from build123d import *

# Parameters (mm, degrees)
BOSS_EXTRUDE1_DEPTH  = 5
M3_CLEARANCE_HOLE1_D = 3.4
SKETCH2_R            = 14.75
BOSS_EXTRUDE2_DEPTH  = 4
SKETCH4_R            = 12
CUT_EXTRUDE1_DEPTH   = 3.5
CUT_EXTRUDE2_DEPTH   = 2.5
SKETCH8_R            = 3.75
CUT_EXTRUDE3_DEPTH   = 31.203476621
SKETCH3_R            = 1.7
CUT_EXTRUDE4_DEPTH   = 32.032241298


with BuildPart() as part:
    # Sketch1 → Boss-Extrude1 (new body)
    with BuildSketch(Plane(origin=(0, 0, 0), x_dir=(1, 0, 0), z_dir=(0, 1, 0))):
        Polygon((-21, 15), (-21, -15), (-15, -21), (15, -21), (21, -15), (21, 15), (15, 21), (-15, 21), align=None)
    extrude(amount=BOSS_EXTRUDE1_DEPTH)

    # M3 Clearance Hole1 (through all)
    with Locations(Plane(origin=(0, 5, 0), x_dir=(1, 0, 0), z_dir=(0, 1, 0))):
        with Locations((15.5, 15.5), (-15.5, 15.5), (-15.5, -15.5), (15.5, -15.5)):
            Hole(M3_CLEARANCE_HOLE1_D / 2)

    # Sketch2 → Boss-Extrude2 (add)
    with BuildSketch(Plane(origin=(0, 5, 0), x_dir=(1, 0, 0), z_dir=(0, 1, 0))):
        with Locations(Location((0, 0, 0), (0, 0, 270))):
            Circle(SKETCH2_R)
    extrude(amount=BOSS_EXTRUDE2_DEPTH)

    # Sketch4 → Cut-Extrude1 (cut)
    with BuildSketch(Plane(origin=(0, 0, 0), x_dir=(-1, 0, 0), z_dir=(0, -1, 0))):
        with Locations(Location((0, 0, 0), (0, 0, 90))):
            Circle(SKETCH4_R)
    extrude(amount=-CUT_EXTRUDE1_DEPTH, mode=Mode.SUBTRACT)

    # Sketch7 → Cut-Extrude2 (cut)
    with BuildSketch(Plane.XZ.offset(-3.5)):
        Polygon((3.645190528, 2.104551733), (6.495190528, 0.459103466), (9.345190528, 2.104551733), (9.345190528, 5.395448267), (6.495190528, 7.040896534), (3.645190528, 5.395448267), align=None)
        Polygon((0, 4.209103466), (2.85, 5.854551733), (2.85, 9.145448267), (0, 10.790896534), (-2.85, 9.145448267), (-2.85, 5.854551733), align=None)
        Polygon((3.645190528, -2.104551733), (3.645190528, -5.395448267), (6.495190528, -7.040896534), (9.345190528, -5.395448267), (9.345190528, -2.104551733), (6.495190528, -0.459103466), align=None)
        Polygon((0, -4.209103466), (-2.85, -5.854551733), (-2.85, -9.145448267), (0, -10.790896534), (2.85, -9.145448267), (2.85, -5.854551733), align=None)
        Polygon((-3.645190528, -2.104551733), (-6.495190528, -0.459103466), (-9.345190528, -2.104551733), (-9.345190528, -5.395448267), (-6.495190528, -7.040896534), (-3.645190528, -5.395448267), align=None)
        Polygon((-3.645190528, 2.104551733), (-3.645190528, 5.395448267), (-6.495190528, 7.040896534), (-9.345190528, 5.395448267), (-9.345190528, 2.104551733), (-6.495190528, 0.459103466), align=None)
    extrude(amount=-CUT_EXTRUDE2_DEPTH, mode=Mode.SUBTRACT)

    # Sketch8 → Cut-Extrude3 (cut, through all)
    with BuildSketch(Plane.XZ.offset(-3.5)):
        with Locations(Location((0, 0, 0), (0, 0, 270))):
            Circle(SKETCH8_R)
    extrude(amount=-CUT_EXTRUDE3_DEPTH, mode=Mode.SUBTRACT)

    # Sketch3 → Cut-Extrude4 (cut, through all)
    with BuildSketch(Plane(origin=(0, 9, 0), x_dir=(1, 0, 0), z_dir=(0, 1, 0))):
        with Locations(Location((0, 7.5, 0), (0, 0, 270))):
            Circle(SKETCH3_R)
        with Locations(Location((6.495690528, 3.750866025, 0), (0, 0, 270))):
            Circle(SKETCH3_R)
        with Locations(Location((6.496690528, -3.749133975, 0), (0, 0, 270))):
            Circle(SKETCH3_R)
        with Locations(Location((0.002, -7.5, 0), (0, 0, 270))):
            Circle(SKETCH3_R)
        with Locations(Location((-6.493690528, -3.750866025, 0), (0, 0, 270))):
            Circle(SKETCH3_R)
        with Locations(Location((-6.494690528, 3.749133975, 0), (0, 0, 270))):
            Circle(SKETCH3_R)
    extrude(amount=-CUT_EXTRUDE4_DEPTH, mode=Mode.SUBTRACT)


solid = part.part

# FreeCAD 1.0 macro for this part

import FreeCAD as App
import Part
import Sketcher
from FreeCAD import Vector
Q = App.Units.Quantity


def add_polygon(sketch, points):
    """Adds a closed chain of lines whose ends are joined by coincident constraints."""
    first, n = sketch.GeometryCount, len(points)
    for a, b in zip(points, points[1:] + points[:1]):
        sketch.addGeometry(Part.LineSegment(App.Vector(*a, 0), App.Vector(*b, 0)), False)
    for i in range(n):
        sketch.addConstraint(Sketcher.Constraint("Coincident", first + i, 2, first + (i + 1) % n, 1))

doc = App.newDocument("Part")
body = doc.addObject("PartDesign::Body", "Body")

sketch1 = body.newObject("Sketcher::SketchObject", "Sketch")
sketch1.AttachmentSupport = (doc.getObject("XZ_Plane"), [""])
sketch1.MapMode = "FlatFace"
add_polygon(sketch1, [(-21, -15), (-21, 15), (-15, 21), (15, 21), (21, 15), (21, -15), (15, -21), (-15, -21)])
sketch1.addConstraint(Sketcher.Constraint("Vertical", 0))
sketch1.addConstraint(Sketcher.Constraint("Horizontal", 2))
sketch1.addConstraint(Sketcher.Constraint("Vertical", 4))
sketch1.addConstraint(Sketcher.Constraint("Horizontal", 6))
sketch1.addConstraint(Sketcher.Constraint("Symmetric", 0, 2, 4, 2, -1, 1))
sketch1.addConstraint(Sketcher.Constraint("Symmetric", 1, 2, 5, 2, -1, 1))
sketch1.addConstraint(Sketcher.Constraint("Perpendicular", 1, 3))
sketch1.addConstraint(Sketcher.Constraint("Perpendicular", 5, 7))
sketch1.addConstraint(Sketcher.Constraint("Horizontal", 0, 2, 3, 2))
sketch1.addConstraint(Sketcher.Constraint("Horizontal", 4, 2, 7, 2))
sketch1.addConstraint(Sketcher.Constraint("Vertical", 2, 2, 5, 2))
sketch1.addConstraint(Sketcher.Constraint("Equal", 6, 0))
sketch1.addConstraint(Sketcher.Constraint("DistanceX", 2, 1, 2, 2, 30.0))
sketch1.addConstraint(Sketcher.Constraint("DistanceX", 0, 2, -1, 1, 21.0))
pad1 = body.newObject("PartDesign::Pad", "Pad")
pad1.Profile = sketch1
pad1.Length = 5
pad1.Reversed = True

sketch2 = body.newObject("Sketcher::SketchObject", "Sketch001")
sketch2.AttachmentSupport = (doc.getObject("XZ_Plane"), [""])
sketch2.MapMode = "FlatFace"
sketch2.AttachmentOffset = App.Placement(Vector(0, 0, -5), App.Rotation())
sketch2.addGeometry(Part.Circle(Vector(15.5, -15.5, 0), Vector(0, 0, 1), 1.7), False)
sketch2.addGeometry(Part.Circle(Vector(-15.5, -15.5, 0), Vector(0, 0, 1), 1.7), False)
sketch2.addGeometry(Part.Circle(Vector(-15.5, 15.5, 0), Vector(0, 0, 1), 1.7), False)
sketch2.addGeometry(Part.Circle(Vector(15.5, 15.5, 0), Vector(0, 0, 1), 1.7), False)
sketch2.addConstraint(Sketcher.Constraint("Equal", 0, 1))
sketch2.addConstraint(Sketcher.Constraint("Equal", 1, 2))
sketch2.addConstraint(Sketcher.Constraint("Equal", 2, 3))
sketch2.addConstraint(Sketcher.Constraint("Symmetric", 0, 3, 2, 3, -1, 1))
sketch2.addConstraint(Sketcher.Constraint("Symmetric", 1, 3, 3, 3, -1, 1))
sketch2.addConstraint(Sketcher.Constraint("Symmetric", 0, 3, 1, 3, -2))
sketch2.addConstraint(Sketcher.Constraint("Diameter", 0, 3.4))
sketch2.addConstraint(Sketcher.Constraint("DistanceX", 1, 3, 0, 3, 31.0))
sketch2.addConstraint(Sketcher.Constraint("DistanceY", 1, 3, 2, 3, 31.0))
doc.recompute()
hole = body.newObject("PartDesign::Hole", "Hole")
hole.Profile = sketch2
hole.ThreadType = "None"
hole.Diameter = 3.4
hole.DepthType = "ThroughAll"
hole.Reversed = True

sketch3 = body.newObject("Sketcher::SketchObject", "Sketch002")
sketch3.AttachmentSupport = (doc.getObject("XZ_Plane"), [""])
sketch3.MapMode = "FlatFace"
sketch3.AttachmentOffset = App.Placement(Vector(0, 0, -5), App.Rotation())
sketch3.addGeometry(Part.Circle(Vector(0, 0, 0), Vector(0, 0, 1), 15), False)
sketch3.addConstraint(Sketcher.Constraint("Coincident", 0, 3, -1, 1))
sketch3.addConstraint(Sketcher.Constraint("Diameter", 0, 29.5))
pad2 = body.newObject("PartDesign::Pad", "Pad001")
pad2.Profile = sketch3
pad2.Length = 4
pad2.Reversed = True

sketch4 = body.newObject("Sketcher::SketchObject", "Sketch003")
sketch4.AttachmentSupport = (doc.getObject("XZ_Plane"), [""])
sketch4.MapMode = "FlatFace"
sketch4.addGeometry(Part.Circle(Vector(0, 0, 0), Vector(0, 0, 1), 12), False)
sketch4.addConstraint(Sketcher.Constraint("Coincident", 0, 3, -1, 1))
sketch4.addConstraint(Sketcher.Constraint("Diameter", 0, 24.0))
pocket1 = body.newObject("PartDesign::Pocket", "Pocket")
pocket1.Profile = sketch4
pocket1.Length = 3.5

sketch5 = body.newObject("Sketcher::SketchObject", "Sketch004")
sketch5.AttachmentSupport = (doc.getObject("XZ_Plane"), [""])
sketch5.MapMode = "FlatFace"
sketch5.AttachmentOffset = App.Placement(Vector(0, 0, -3.5), App.Rotation())
add_polygon(sketch5, [(3.6, 2.1), (6.5, 0.5), (9.3, 2.1), (9.3, 5.4), (6.5, 7), (3.6, 5.4)])
add_polygon(sketch5, [(0, 4.2), (2.9, 5.9), (2.9, 9.1), (0, 10.8), (-2.9, 9.1), (-2.9, 5.9)])
add_polygon(sketch5, [(3.6, -2.1), (3.6, -5.4), (6.5, -7), (9.3, -5.4), (9.3, -2.1), (6.5, -0.5)])
add_polygon(sketch5, [(0, -4.2), (-2.9, -5.9), (-2.9, -9.1), (0, -10.8), (2.9, -9.1), (2.9, -5.9)])
add_polygon(sketch5, [(-3.6, -2.1), (-6.5, -0.5), (-9.3, -2.1), (-9.3, -5.4), (-6.5, -7), (-3.6, -5.4)])
add_polygon(sketch5, [(-3.6, 2.1), (-3.6, 5.4), (-6.5, 7), (-9.3, 5.4), (-9.3, 2.1), (-6.5, 0.5)])
sketch5.addConstraint(Sketcher.Constraint("Vertical", 2))
sketch5.addConstraint(Sketcher.Constraint("Vertical", 5))
sketch5.addConstraint(Sketcher.Constraint("Vertical", 7))
sketch5.addConstraint(Sketcher.Constraint("Vertical", 10))
sketch5.addConstraint(Sketcher.Constraint("Vertical", 12))
sketch5.addConstraint(Sketcher.Constraint("Vertical", 15))
sketch5.addConstraint(Sketcher.Constraint("Vertical", 19))
sketch5.addConstraint(Sketcher.Constraint("Vertical", 22))
sketch5.addConstraint(Sketcher.Constraint("Vertical", 26))
sketch5.addConstraint(Sketcher.Constraint("Vertical", 29))
sketch5.addConstraint(Sketcher.Constraint("Vertical", 30))
sketch5.addConstraint(Sketcher.Constraint("Vertical", 33))
sketch5.addConstraint(Sketcher.Constraint("Symmetric", 6, 2, 18, 2, -1, 1))
sketch5.addConstraint(Sketcher.Constraint("Symmetric", 8, 2, 20, 2, -1, 1))
sketch5.addConstraint(Sketcher.Constraint("Symmetric", 9, 2, 21, 2, -1, 1))
sketch5.addConstraint(Sketcher.Constraint("Symmetric", 11, 2, 23, 2, -1, 1))
sketch5.addConstraint(Sketcher.Constraint("Symmetric", 0, 2, 24, 2, -1, 1))
sketch5.addConstraint(Sketcher.Constraint("Symmetric", 1, 2, 25, 2, -1, 1))
sketch5.addConstraint(Sketcher.Constraint("Symmetric", 3, 2, 27, 2, -1, 1))
sketch5.addConstraint(Sketcher.Constraint("Symmetric", 4, 2, 28, 2, -1, 1))
sketch5.addConstraint(Sketcher.Constraint("Symmetric", 12, 2, 30, 2, -1, 1))
sketch5.addConstraint(Sketcher.Constraint("Symmetric", 13, 2, 31, 2, -1, 1))
sketch5.addConstraint(Sketcher.Constraint("Symmetric", 14, 2, 32, 2, -1, 1))
sketch5.addConstraint(Sketcher.Constraint("Symmetric", 16, 2, 34, 2, -1, 1))
sketch5.addConstraint(Sketcher.Constraint("Symmetric", 7, 2, 9, 2, -2))
sketch5.addConstraint(Sketcher.Constraint("Symmetric", 16, 2, 24, 2, -2))
sketch5.addConstraint(Sketcher.Constraint("Symmetric", 15, 2, 25, 2, -2))
sketch5.addConstraint(Sketcher.Constraint("Symmetric", 13, 2, 27, 2, -2))
sketch5.addConstraint(Sketcher.Constraint("Symmetric", 12, 2, 28, 2, -2))
sketch5.addConstraint(Sketcher.Constraint("PointOnObject", 8, 2, -2))
sketch5.addConstraint(Sketcher.Constraint("PointOnObject", 11, 2, -2))
sketch5.addConstraint(Sketcher.Constraint("Parallel", 0, 3))
sketch5.addConstraint(Sketcher.Constraint("Parallel", 1, 4))
sketch5.addConstraint(Sketcher.Constraint("Parallel", 4, 6))
sketch5.addConstraint(Sketcher.Constraint("Parallel", 3, 8))
sketch5.addConstraint(Sketcher.Constraint("Parallel", 6, 9))
sketch5.addConstraint(Sketcher.Constraint("Parallel", 8, 11))
sketch5.addConstraint(Sketcher.Constraint("Parallel", 9, 14))
sketch5.addConstraint(Sketcher.Constraint("Parallel", 14, 17))
sketch5.addConstraint(Sketcher.Constraint("Parallel", 16, 20))
sketch5.addConstraint(Sketcher.Constraint("Parallel", 20, 23))
sketch5.addConstraint(Sketcher.Constraint("Parallel", 23, 24))
sketch5.addConstraint(Sketcher.Constraint("Parallel", 24, 27))
sketch5.addConstraint(Sketcher.Constraint("Parallel", 31, 34))
sketch5.addConstraint(Sketcher.Constraint("Parallel", 32, 35))
sketch5.addConstraint(Sketcher.Constraint("Horizontal", 2, 2, 4, 2))
sketch5.addConstraint(Sketcher.Constraint("Horizontal", 1, 2, 5, 2))
sketch5.addConstraint(Sketcher.Constraint("Equal", 5, 7))
sketch5.addConstraint(Sketcher.Constraint("Equal", 4, 6))
sketch5.addConstraint(Sketcher.Constraint("Angle", 0, Q("-30 deg")))
sketch5.addConstraint(Sketcher.Constraint("DistanceX", 4, 2, 2, 2, 5.7))
sketch5.addConstraint(Sketcher.Constraint("DistanceY", 12, 2, 5, 2, 7.5))
sketch5.addConstraint(Sketcher.Constraint("DistanceY", 5, 2, 6, 2, 3.75))
sketch5.addConstraint(Sketcher.Constraint("DistanceY", 2, 1, 2, 2, 3.290897))
sketch5.addConstraint(Sketcher.Constraint("DistanceX", -1, 1, 0, 2, 6.495191))
pocket2 = body.newObject("PartDesign::Pocket", "Pocket001")
pocket2.Profile = sketch5
pocket2.Length = 2.5

sketch6 = body.newObject("Sketcher::SketchObject", "Sketch005")
sketch6.AttachmentSupport = (doc.getObject("XZ_Plane"), [""])
sketch6.MapMode = "FlatFace"
sketch6.AttachmentOffset = App.Placement(Vector(0, 0, -3.5), App.Rotation())
sketch6.addGeometry(Part.Circle(Vector(0, 0, 0), Vector(0, 0, 1), 3.8), False)
sketch6.addConstraint(Sketcher.Constraint("Coincident", 0, 3, -1, 1))
sketch6.addConstraint(Sketcher.Constraint("Diameter", 0, 7.5))
pocket3 = body.newObject("PartDesign::Pocket", "Pocket002")
pocket3.Profile = sketch6
pocket3.Type = "ThroughAll"

sketch7 = body.newObject("Sketcher::SketchObject", "Sketch006")
sketch7.AttachmentSupport = (doc.getObject("XZ_Plane"), [""])
sketch7.MapMode = "FlatFace"
sketch7.AttachmentOffset = App.Placement(Vector(0, 0, -9), App.Rotation())
sketch7.addGeometry(Part.Circle(Vector(0, -7.5, 0), Vector(0, 0, 1), 1.7), False)
sketch7.addGeometry(Part.Circle(Vector(6.5, -3.8, 0), Vector(0, 0, 1), 1.7), False)
sketch7.addGeometry(Part.Circle(Vector(6.5, 3.7, 0), Vector(0, 0, 1), 1.7), False)
sketch7.addGeometry(Part.Circle(Vector(0, 7.5, 0), Vector(0, 0, 1), 1.7), False)
sketch7.addGeometry(Part.Circle(Vector(-6.5, 3.8, 0), Vector(0, 0, 1), 1.7), False)
sketch7.addGeometry(Part.Circle(Vector(-6.5, -3.7, 0), Vector(0, 0, 1), 1.7), False)
sketch7.addConstraint(Sketcher.Constraint("Equal", 0, 1))
sketch7.addConstraint(Sketcher.Constraint("Equal", 1, 2))
sketch7.addConstraint(Sketcher.Constraint("Equal", 2, 3))
sketch7.addConstraint(Sketcher.Constraint("Equal", 3, 4))
sketch7.addConstraint(Sketcher.Constraint("Equal", 4, 5))
sketch7.addConstraint(Sketcher.Constraint("PointOnObject", 0, 3, -2))
sketch7.addConstraint(Sketcher.Constraint("Diameter", 0, 3.4))
sketch7.addConstraint(Sketcher.Constraint("DistanceY", 0, 3, 3, 3, 15.0))
sketch7.addConstraint(Sketcher.Constraint("DistanceY", 0, 3, -1, 1, 7.5))
sketch7.addConstraint(Sketcher.Constraint("DistanceY", 1, 3, 2, 3, 7.5))
sketch7.addConstraint(Sketcher.Constraint("DistanceY", 5, 3, 4, 3, 7.5))
sketch7.addConstraint(Sketcher.Constraint("DistanceX", -1, 1, 3, 3, 0.002))
sketch7.addConstraint(Sketcher.Constraint("DistanceX", 1, 3, 2, 3, 0.001))
sketch7.addConstraint(Sketcher.Constraint("DistanceX", 5, 3, 4, 3, 0.001))
sketch7.addConstraint(Sketcher.Constraint("DistanceX", -1, 1, 1, 3, 6.495691))
sketch7.addConstraint(Sketcher.Constraint("DistanceX", 4, 3, -1, 1, 6.493691))
sketch7.addConstraint(Sketcher.Constraint("DistanceY", 1, 3, -1, 1, 3.750866))
sketch7.addConstraint(Sketcher.Constraint("DistanceY", -1, 1, 4, 3, 3.750866))
pocket4 = body.newObject("PartDesign::Pocket", "Pocket003")
pocket4.Profile = sketch7
pocket4.Type = "ThroughAll"
pocket4.Reversed = True

doc.recompute()
